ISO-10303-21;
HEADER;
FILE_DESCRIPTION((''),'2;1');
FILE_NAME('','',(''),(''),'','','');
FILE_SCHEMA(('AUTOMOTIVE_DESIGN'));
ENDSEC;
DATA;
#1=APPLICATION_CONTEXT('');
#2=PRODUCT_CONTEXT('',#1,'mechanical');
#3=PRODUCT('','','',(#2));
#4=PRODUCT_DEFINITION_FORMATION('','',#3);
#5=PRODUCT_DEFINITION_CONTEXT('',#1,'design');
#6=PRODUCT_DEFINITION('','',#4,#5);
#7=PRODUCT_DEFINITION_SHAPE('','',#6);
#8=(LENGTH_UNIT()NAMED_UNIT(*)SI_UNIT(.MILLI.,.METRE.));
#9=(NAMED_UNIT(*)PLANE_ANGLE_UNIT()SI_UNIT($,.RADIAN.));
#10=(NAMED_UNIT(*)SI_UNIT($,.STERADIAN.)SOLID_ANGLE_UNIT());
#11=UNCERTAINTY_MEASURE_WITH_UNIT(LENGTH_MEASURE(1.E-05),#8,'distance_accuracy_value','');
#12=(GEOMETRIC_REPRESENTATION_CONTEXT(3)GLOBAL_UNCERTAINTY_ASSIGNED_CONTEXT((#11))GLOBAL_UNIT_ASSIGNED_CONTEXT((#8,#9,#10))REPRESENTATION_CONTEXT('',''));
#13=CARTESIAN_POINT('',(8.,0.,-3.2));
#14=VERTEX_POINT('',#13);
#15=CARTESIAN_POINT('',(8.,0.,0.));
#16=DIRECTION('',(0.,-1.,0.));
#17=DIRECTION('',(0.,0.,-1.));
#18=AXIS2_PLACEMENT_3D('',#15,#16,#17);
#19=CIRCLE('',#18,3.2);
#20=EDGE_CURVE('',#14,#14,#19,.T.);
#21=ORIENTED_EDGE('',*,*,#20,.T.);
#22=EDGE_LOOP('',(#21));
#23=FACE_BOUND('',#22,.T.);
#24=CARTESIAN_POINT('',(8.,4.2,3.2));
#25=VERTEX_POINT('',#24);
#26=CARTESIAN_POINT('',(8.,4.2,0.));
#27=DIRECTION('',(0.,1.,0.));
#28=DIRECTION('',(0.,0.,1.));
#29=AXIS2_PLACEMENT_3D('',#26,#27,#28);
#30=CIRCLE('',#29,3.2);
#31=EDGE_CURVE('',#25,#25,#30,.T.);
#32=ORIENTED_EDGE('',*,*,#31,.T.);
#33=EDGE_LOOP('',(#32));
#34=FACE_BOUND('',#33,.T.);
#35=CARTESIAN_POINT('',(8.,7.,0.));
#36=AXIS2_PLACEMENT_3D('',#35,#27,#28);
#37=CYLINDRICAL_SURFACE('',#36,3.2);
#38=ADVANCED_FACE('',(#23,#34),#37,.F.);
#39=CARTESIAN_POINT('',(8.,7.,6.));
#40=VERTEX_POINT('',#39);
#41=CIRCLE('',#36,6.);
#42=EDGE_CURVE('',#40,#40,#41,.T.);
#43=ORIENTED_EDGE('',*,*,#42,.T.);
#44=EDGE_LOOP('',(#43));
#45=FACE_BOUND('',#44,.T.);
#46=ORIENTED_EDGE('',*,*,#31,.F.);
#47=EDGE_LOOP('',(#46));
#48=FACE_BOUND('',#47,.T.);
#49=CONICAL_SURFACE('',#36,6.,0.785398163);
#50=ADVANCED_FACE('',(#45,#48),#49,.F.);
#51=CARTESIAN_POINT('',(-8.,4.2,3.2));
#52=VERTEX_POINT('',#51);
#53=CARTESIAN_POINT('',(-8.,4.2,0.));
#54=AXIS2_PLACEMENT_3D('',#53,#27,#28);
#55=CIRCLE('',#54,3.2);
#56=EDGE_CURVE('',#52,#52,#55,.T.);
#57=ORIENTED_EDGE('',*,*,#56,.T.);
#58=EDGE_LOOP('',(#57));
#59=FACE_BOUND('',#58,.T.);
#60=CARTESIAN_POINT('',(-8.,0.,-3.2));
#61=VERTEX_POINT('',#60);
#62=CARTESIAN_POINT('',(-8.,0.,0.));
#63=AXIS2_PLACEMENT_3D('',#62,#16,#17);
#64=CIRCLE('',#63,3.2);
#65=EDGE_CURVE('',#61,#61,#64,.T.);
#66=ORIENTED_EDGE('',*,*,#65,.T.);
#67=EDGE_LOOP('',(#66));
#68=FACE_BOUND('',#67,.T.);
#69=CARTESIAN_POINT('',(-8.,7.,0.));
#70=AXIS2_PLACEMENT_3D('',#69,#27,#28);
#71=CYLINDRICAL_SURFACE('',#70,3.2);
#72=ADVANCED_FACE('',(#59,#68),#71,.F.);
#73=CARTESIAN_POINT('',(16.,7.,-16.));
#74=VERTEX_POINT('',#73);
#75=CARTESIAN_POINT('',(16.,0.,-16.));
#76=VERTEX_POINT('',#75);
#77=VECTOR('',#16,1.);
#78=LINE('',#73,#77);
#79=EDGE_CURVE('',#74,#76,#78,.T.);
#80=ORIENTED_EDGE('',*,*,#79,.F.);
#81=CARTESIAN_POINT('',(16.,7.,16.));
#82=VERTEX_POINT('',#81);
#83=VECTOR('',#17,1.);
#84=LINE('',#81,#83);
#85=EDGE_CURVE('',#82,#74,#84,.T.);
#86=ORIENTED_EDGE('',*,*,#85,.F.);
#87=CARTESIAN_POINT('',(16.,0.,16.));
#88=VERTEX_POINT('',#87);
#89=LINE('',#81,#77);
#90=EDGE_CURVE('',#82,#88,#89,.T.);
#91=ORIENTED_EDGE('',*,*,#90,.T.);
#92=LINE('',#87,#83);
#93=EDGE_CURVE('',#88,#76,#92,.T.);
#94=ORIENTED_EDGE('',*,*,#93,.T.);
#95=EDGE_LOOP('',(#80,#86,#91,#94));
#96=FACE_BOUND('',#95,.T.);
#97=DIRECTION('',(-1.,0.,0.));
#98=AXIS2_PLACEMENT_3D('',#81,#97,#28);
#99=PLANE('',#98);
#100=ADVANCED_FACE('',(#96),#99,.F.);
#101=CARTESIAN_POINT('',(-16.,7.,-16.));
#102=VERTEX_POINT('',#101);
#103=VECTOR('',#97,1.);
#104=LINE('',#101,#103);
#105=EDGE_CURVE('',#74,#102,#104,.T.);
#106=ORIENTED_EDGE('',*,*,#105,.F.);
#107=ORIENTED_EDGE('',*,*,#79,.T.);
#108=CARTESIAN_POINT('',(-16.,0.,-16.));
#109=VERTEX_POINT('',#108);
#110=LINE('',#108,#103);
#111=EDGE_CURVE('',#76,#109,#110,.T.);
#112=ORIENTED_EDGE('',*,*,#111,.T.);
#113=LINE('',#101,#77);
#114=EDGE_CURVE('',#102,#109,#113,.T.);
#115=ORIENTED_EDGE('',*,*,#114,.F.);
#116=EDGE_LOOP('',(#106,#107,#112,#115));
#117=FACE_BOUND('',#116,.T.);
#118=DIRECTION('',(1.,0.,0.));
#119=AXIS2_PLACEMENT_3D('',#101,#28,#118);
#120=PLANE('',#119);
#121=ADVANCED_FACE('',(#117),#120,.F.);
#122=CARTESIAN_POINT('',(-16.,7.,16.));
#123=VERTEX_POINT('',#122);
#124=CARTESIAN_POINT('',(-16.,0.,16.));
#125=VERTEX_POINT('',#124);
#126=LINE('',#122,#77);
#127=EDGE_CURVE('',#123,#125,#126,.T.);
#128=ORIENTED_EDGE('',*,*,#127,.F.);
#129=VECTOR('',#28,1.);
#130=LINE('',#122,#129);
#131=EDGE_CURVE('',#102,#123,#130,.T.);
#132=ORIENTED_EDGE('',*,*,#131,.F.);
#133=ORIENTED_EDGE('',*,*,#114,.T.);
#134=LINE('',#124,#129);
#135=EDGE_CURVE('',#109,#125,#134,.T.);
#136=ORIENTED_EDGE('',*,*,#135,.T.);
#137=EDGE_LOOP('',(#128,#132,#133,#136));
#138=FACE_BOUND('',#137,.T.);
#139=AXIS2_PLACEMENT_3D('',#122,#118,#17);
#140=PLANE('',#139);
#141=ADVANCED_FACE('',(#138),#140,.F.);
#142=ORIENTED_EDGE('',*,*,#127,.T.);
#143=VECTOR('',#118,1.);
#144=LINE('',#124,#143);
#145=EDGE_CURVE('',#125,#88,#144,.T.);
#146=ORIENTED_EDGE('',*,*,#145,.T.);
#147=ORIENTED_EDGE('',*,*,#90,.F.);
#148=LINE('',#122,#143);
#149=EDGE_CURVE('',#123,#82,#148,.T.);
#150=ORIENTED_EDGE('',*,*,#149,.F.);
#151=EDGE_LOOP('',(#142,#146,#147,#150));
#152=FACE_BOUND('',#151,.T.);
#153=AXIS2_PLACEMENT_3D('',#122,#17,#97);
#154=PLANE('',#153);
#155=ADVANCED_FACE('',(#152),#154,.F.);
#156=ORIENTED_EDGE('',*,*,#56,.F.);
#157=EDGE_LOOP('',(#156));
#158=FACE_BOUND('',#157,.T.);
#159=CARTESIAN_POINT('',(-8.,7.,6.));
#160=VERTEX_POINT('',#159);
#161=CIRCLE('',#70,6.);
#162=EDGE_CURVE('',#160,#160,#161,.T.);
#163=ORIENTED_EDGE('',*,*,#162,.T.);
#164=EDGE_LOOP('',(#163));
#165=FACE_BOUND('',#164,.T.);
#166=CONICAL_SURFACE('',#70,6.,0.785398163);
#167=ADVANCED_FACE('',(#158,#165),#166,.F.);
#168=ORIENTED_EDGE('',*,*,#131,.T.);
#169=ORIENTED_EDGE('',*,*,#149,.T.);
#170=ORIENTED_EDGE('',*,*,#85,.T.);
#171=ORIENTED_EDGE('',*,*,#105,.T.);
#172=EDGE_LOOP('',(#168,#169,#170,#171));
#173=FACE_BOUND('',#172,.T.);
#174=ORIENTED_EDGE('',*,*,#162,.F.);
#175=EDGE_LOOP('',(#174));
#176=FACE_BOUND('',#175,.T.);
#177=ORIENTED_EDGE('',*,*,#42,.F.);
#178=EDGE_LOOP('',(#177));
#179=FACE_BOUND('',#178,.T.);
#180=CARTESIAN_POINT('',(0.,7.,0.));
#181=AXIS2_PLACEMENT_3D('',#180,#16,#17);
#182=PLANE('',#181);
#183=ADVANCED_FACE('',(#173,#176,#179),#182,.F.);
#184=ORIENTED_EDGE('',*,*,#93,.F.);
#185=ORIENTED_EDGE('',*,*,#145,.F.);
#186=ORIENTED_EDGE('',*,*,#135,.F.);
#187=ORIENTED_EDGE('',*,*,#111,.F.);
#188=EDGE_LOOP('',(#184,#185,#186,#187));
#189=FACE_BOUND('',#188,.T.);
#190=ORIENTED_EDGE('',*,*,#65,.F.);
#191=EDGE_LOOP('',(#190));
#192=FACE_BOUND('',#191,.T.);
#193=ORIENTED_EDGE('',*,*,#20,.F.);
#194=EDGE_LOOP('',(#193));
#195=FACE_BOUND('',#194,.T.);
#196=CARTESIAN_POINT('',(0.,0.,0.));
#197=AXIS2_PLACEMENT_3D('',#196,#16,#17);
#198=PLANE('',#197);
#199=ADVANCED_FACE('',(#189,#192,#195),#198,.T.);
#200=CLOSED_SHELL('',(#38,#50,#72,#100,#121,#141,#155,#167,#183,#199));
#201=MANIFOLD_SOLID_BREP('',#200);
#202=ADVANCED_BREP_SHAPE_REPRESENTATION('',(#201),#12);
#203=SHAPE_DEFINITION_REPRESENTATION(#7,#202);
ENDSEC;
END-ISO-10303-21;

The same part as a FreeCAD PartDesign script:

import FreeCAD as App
import Part
import Sketcher
from FreeCAD import Vector


def add_polygon(sketch, points):
    """Adds a closed chain of lines whose ends are joined by coincident constraints."""
    first, n = sketch.GeometryCount, len(points)
    for a, b in zip(points, points[1:] + points[:1]):
        sketch.addGeometry(Part.LineSegment(App.Vector(*a, 0), App.Vector(*b, 0)), False)
    for i in range(n):
        sketch.addConstraint(Sketcher.Constraint("Coincident", first + i, 2, first + (i + 1) % n, 1))

doc = App.newDocument("Part")
body = doc.addObject("PartDesign::Body", "Body")

# Sketch on XZ plane
sketch1 = doc.addObject("Sketcher::SketchObject", "Sketch")
body.addObject(sketch1)
sketch1.AttachmentSupport = (doc.XZ_Plane, [""])
sketch1.MapMode = "FlatFace"
add_polygon(sketch1, [(-16, -16), (-16, 16), (16, 16), (16, -16)])  # lines 0-3
sketch1.addConstraint([
    Sketcher.Constraint("Vertical", 0),
    Sketcher.Constraint("Horizontal", 1),
    Sketcher.Constraint("Vertical", 2),
    Sketcher.Constraint("Horizontal", 3),
    Sketcher.Constraint("Symmetric", 0, 2, 2, 2, -1, 1),
    Sketcher.Constraint("Equal", 3, 0),
    Sketcher.Constraint("DistanceX", 1, 1, 1, 2, 32.0),
])
pad1 = doc.addObject("PartDesign::Pad", "Pad")
body.addObject(pad1)
pad1.Profile = sketch1
pad1.Length = 7
pad1.Reversed = True

# Sketch on XZ plane
sketch2 = doc.addObject("Sketcher::SketchObject", "Sketch001")
body.addObject(sketch2)
sketch2.AttachmentSupport = (doc.XZ_Plane, [""])
sketch2.MapMode = "FlatFace"
sketch2.AttachmentOffset = App.Placement(Vector(0, 0, -7), App.Rotation())
sketch2.addGeometry([
    Part.Circle(Vector(8, 0, 0), Vector(0, 0, 1), 3.2),
    Part.Circle(Vector(-8, 0, 0), Vector(0, 0, 1), 3.2),
], False)
sketch2.addConstraint([
    Sketcher.Constraint("Equal", 0, 1),
    Sketcher.Constraint("Symmetric", 0, 3, 1, 3, -1, 1),
    Sketcher.Constraint("PointOnObject", 0, 3, -1),
    Sketcher.Constraint("Diameter", 0, 6.4),
    Sketcher.Constraint("DistanceX", -1, 1, 0, 3, 8.0),
])
doc.recompute()
hole = doc.addObject("PartDesign::Hole", "Hole")
body.addObject(hole)
hole.Profile = sketch2
hole.ThreadType = "None"
hole.Diameter = 6.4
hole.DepthType = "ThroughAll"
hole.HoleCutType = "Countersink"
hole.HoleCutDiameter = 12
hole.HoleCutCountersinkAngle = 90
hole.Reversed = True

doc.recompute()
